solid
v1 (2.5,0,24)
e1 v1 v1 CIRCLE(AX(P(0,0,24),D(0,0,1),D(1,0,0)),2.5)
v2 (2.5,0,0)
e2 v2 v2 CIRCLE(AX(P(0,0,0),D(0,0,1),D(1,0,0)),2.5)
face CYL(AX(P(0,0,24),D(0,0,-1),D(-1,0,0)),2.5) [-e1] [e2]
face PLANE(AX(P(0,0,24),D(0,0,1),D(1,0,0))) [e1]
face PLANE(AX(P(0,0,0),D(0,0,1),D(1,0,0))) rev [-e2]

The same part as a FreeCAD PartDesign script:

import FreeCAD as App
import Part
import Sketcher
from FreeCAD import Vector

doc = App.newDocument("Part")
body = doc.addObject("PartDesign::Body", "Body")

# Sketch on XY plane
sketch1 = body.newObject("Sketcher::SketchObject", "Sketch")
sketch1.AttachmentSupport = (doc.getObject("XY_Plane"), [""])
sketch1.MapMode = "FlatFace"
sketch1.addGeometry(Part.Circle(Vector(0, 0, 0), Vector(0, 0, 1), 2.5), False)
sketch1.addConstraint(Sketcher.Constraint("Coincident", 0, 3, -1, 1))
sketch1.addConstraint(Sketcher.Constraint("Diameter", 0, 5.0))
pad1 = body.newObject("PartDesign::Pad", "Pad")
pad1.Profile = sketch1
pad1.Length = 24

doc.recompute()
